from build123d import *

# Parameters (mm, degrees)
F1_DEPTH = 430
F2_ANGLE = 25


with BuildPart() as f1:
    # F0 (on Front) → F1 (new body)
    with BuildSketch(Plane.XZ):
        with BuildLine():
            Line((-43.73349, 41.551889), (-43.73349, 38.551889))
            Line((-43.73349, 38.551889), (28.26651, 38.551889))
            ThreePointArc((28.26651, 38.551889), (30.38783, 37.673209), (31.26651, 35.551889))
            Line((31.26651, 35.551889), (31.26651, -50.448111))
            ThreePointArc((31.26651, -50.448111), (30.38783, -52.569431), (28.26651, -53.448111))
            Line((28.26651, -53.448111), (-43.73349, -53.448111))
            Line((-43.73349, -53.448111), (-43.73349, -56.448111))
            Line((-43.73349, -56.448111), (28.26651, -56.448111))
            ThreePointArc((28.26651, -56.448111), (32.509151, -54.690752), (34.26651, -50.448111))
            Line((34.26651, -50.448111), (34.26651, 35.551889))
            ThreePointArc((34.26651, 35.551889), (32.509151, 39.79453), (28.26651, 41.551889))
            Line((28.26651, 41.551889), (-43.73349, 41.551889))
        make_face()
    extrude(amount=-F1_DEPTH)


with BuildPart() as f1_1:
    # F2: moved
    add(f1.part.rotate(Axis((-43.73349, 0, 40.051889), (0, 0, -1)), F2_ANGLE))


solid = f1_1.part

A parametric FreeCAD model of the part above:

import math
import FreeCAD as App
import Part
import Sketcher

V = App.Vector

doc = App.newDocument("Part")
body = doc.addObject("PartDesign::Body", "Body")

sketch1 = body.newObject("Sketcher::SketchObject", "Sketch")
sketch1.AttachmentSupport = (doc.getObject("XZ_Plane"), [""])
sketch1.MapMode = "FlatFace"
sketch1.addGeometry([
    Part.LineSegment(V(-43.7, 41.6, 0), V(-43.7, 38.6, 0)),
    Part.LineSegment(V(-43.7, 38.6, 0), V(28.3, 38.6, 0)),
    Part.ArcOfCircle(Part.Circle(V(28.3, 35.6, 0), V(0, 0, 1), 3), math.radians(0), math.radians(90)),
    Part.LineSegment(V(31.3, 35.6, 0), V(31.3, -50.4, 0)),
    Part.ArcOfCircle(Part.Circle(V(28.3, -50.4, 0), V(0, 0, 1), 3), math.radians(-90), math.radians(0)),
    Part.LineSegment(V(28.3, -53.4, 0), V(-43.7, -53.4, 0)),
    Part.LineSegment(V(-43.7, -53.4, 0), V(-43.7, -56.4, 0)),
    Part.LineSegment(V(-43.7, -56.4, 0), V(28.3, -56.4, 0)),
    Part.ArcOfCircle(Part.Circle(V(28.3, -50.4, 0), V(0, 0, 1), 6), math.radians(-90), math.radians(0)),
    Part.LineSegment(V(34.3, -50.4, 0), V(34.3, 35.6, 0)),
    Part.ArcOfCircle(Part.Circle(V(28.3, 35.6, 0), V(0, 0, 1), 6), math.radians(0), math.radians(90)),
    Part.LineSegment(V(28.3, 41.6, 0), V(-43.7, 41.6, 0)),
], False)
sketch1.addConstraint([
    Sketcher.Constraint("Coincident", 0, 2, 1, 1),
    Sketcher.Constraint("Tangent", 1, 2, 2, 2),
    Sketcher.Constraint("Tangent", 2, 1, 3, 1),
    Sketcher.Constraint("Tangent", 3, 2, 4, 2),
    Sketcher.Constraint("Tangent", 4, 1, 5, 1),
    Sketcher.Constraint("Coincident", 5, 2, 6, 1),
    Sketcher.Constraint("Coincident", 6, 2, 7, 1),
    Sketcher.Constraint("Tangent", 7, 2, 8, 1),
    Sketcher.Constraint("Tangent", 8, 2, 9, 1),
    Sketcher.Constraint("Tangent", 9, 2, 10, 1),
    Sketcher.Constraint("Tangent", 10, 2, 11, 1),
    Sketcher.Constraint("Coincident", 11, 2, 0, 1),
    Sketcher.Constraint("Vertical", 0),
    Sketcher.Constraint("Horizontal", 1),
    Sketcher.Constraint("Vertical", 3),
    Sketcher.Constraint("Horizontal", 5),
    Sketcher.Constraint("Vertical", 6),
    Sketcher.Constraint("Horizontal", 7),
    Sketcher.Constraint("Vertical", 9),
    Sketcher.Constraint("Horizontal", 11),
    Sketcher.Constraint("Coincident", 8, 3, 4, 3),
    Sketcher.Constraint("Coincident", 10, 3, 2, 3),
    Sketcher.Constraint("Equal", 2, 4),
    Sketcher.Constraint("Vertical", 0, 2, 5, 2),
    Sketcher.Constraint("Radius", 2, 3.000001),
    Sketcher.Constraint("Radius", 8, 5.999999),
    Sketcher.Constraint("DistanceX", 1, 1, 1, 2, 72.0),
    Sketcher.Constraint("DistanceY", 3, 2, 3, 1, 86.0),
    Sketcher.Constraint("DistanceX", -1, 1, 2, 3, 28.266509),
    Sketcher.Constraint("DistanceY", 4, 3, -1, 1, 50.44811),
])
pad1 = body.newObject("PartDesign::Pad", "Pad")
pad1.Profile = sketch1
pad1.Length = 430
pad1.Reversed = True
body2 = doc.addObject("PartDesign::Body", "Body001")
doc.recompute()

body.Placement = App.Placement(V(-4.097487, -18.482572, 0), App.Rotation(V(0, 0, -1), 25))
boolean = body2.newObject("PartDesign::Boolean", "Boolean")
boolean.Type = "Fuse"
boolean.addObjects([body])

doc.recompute()
